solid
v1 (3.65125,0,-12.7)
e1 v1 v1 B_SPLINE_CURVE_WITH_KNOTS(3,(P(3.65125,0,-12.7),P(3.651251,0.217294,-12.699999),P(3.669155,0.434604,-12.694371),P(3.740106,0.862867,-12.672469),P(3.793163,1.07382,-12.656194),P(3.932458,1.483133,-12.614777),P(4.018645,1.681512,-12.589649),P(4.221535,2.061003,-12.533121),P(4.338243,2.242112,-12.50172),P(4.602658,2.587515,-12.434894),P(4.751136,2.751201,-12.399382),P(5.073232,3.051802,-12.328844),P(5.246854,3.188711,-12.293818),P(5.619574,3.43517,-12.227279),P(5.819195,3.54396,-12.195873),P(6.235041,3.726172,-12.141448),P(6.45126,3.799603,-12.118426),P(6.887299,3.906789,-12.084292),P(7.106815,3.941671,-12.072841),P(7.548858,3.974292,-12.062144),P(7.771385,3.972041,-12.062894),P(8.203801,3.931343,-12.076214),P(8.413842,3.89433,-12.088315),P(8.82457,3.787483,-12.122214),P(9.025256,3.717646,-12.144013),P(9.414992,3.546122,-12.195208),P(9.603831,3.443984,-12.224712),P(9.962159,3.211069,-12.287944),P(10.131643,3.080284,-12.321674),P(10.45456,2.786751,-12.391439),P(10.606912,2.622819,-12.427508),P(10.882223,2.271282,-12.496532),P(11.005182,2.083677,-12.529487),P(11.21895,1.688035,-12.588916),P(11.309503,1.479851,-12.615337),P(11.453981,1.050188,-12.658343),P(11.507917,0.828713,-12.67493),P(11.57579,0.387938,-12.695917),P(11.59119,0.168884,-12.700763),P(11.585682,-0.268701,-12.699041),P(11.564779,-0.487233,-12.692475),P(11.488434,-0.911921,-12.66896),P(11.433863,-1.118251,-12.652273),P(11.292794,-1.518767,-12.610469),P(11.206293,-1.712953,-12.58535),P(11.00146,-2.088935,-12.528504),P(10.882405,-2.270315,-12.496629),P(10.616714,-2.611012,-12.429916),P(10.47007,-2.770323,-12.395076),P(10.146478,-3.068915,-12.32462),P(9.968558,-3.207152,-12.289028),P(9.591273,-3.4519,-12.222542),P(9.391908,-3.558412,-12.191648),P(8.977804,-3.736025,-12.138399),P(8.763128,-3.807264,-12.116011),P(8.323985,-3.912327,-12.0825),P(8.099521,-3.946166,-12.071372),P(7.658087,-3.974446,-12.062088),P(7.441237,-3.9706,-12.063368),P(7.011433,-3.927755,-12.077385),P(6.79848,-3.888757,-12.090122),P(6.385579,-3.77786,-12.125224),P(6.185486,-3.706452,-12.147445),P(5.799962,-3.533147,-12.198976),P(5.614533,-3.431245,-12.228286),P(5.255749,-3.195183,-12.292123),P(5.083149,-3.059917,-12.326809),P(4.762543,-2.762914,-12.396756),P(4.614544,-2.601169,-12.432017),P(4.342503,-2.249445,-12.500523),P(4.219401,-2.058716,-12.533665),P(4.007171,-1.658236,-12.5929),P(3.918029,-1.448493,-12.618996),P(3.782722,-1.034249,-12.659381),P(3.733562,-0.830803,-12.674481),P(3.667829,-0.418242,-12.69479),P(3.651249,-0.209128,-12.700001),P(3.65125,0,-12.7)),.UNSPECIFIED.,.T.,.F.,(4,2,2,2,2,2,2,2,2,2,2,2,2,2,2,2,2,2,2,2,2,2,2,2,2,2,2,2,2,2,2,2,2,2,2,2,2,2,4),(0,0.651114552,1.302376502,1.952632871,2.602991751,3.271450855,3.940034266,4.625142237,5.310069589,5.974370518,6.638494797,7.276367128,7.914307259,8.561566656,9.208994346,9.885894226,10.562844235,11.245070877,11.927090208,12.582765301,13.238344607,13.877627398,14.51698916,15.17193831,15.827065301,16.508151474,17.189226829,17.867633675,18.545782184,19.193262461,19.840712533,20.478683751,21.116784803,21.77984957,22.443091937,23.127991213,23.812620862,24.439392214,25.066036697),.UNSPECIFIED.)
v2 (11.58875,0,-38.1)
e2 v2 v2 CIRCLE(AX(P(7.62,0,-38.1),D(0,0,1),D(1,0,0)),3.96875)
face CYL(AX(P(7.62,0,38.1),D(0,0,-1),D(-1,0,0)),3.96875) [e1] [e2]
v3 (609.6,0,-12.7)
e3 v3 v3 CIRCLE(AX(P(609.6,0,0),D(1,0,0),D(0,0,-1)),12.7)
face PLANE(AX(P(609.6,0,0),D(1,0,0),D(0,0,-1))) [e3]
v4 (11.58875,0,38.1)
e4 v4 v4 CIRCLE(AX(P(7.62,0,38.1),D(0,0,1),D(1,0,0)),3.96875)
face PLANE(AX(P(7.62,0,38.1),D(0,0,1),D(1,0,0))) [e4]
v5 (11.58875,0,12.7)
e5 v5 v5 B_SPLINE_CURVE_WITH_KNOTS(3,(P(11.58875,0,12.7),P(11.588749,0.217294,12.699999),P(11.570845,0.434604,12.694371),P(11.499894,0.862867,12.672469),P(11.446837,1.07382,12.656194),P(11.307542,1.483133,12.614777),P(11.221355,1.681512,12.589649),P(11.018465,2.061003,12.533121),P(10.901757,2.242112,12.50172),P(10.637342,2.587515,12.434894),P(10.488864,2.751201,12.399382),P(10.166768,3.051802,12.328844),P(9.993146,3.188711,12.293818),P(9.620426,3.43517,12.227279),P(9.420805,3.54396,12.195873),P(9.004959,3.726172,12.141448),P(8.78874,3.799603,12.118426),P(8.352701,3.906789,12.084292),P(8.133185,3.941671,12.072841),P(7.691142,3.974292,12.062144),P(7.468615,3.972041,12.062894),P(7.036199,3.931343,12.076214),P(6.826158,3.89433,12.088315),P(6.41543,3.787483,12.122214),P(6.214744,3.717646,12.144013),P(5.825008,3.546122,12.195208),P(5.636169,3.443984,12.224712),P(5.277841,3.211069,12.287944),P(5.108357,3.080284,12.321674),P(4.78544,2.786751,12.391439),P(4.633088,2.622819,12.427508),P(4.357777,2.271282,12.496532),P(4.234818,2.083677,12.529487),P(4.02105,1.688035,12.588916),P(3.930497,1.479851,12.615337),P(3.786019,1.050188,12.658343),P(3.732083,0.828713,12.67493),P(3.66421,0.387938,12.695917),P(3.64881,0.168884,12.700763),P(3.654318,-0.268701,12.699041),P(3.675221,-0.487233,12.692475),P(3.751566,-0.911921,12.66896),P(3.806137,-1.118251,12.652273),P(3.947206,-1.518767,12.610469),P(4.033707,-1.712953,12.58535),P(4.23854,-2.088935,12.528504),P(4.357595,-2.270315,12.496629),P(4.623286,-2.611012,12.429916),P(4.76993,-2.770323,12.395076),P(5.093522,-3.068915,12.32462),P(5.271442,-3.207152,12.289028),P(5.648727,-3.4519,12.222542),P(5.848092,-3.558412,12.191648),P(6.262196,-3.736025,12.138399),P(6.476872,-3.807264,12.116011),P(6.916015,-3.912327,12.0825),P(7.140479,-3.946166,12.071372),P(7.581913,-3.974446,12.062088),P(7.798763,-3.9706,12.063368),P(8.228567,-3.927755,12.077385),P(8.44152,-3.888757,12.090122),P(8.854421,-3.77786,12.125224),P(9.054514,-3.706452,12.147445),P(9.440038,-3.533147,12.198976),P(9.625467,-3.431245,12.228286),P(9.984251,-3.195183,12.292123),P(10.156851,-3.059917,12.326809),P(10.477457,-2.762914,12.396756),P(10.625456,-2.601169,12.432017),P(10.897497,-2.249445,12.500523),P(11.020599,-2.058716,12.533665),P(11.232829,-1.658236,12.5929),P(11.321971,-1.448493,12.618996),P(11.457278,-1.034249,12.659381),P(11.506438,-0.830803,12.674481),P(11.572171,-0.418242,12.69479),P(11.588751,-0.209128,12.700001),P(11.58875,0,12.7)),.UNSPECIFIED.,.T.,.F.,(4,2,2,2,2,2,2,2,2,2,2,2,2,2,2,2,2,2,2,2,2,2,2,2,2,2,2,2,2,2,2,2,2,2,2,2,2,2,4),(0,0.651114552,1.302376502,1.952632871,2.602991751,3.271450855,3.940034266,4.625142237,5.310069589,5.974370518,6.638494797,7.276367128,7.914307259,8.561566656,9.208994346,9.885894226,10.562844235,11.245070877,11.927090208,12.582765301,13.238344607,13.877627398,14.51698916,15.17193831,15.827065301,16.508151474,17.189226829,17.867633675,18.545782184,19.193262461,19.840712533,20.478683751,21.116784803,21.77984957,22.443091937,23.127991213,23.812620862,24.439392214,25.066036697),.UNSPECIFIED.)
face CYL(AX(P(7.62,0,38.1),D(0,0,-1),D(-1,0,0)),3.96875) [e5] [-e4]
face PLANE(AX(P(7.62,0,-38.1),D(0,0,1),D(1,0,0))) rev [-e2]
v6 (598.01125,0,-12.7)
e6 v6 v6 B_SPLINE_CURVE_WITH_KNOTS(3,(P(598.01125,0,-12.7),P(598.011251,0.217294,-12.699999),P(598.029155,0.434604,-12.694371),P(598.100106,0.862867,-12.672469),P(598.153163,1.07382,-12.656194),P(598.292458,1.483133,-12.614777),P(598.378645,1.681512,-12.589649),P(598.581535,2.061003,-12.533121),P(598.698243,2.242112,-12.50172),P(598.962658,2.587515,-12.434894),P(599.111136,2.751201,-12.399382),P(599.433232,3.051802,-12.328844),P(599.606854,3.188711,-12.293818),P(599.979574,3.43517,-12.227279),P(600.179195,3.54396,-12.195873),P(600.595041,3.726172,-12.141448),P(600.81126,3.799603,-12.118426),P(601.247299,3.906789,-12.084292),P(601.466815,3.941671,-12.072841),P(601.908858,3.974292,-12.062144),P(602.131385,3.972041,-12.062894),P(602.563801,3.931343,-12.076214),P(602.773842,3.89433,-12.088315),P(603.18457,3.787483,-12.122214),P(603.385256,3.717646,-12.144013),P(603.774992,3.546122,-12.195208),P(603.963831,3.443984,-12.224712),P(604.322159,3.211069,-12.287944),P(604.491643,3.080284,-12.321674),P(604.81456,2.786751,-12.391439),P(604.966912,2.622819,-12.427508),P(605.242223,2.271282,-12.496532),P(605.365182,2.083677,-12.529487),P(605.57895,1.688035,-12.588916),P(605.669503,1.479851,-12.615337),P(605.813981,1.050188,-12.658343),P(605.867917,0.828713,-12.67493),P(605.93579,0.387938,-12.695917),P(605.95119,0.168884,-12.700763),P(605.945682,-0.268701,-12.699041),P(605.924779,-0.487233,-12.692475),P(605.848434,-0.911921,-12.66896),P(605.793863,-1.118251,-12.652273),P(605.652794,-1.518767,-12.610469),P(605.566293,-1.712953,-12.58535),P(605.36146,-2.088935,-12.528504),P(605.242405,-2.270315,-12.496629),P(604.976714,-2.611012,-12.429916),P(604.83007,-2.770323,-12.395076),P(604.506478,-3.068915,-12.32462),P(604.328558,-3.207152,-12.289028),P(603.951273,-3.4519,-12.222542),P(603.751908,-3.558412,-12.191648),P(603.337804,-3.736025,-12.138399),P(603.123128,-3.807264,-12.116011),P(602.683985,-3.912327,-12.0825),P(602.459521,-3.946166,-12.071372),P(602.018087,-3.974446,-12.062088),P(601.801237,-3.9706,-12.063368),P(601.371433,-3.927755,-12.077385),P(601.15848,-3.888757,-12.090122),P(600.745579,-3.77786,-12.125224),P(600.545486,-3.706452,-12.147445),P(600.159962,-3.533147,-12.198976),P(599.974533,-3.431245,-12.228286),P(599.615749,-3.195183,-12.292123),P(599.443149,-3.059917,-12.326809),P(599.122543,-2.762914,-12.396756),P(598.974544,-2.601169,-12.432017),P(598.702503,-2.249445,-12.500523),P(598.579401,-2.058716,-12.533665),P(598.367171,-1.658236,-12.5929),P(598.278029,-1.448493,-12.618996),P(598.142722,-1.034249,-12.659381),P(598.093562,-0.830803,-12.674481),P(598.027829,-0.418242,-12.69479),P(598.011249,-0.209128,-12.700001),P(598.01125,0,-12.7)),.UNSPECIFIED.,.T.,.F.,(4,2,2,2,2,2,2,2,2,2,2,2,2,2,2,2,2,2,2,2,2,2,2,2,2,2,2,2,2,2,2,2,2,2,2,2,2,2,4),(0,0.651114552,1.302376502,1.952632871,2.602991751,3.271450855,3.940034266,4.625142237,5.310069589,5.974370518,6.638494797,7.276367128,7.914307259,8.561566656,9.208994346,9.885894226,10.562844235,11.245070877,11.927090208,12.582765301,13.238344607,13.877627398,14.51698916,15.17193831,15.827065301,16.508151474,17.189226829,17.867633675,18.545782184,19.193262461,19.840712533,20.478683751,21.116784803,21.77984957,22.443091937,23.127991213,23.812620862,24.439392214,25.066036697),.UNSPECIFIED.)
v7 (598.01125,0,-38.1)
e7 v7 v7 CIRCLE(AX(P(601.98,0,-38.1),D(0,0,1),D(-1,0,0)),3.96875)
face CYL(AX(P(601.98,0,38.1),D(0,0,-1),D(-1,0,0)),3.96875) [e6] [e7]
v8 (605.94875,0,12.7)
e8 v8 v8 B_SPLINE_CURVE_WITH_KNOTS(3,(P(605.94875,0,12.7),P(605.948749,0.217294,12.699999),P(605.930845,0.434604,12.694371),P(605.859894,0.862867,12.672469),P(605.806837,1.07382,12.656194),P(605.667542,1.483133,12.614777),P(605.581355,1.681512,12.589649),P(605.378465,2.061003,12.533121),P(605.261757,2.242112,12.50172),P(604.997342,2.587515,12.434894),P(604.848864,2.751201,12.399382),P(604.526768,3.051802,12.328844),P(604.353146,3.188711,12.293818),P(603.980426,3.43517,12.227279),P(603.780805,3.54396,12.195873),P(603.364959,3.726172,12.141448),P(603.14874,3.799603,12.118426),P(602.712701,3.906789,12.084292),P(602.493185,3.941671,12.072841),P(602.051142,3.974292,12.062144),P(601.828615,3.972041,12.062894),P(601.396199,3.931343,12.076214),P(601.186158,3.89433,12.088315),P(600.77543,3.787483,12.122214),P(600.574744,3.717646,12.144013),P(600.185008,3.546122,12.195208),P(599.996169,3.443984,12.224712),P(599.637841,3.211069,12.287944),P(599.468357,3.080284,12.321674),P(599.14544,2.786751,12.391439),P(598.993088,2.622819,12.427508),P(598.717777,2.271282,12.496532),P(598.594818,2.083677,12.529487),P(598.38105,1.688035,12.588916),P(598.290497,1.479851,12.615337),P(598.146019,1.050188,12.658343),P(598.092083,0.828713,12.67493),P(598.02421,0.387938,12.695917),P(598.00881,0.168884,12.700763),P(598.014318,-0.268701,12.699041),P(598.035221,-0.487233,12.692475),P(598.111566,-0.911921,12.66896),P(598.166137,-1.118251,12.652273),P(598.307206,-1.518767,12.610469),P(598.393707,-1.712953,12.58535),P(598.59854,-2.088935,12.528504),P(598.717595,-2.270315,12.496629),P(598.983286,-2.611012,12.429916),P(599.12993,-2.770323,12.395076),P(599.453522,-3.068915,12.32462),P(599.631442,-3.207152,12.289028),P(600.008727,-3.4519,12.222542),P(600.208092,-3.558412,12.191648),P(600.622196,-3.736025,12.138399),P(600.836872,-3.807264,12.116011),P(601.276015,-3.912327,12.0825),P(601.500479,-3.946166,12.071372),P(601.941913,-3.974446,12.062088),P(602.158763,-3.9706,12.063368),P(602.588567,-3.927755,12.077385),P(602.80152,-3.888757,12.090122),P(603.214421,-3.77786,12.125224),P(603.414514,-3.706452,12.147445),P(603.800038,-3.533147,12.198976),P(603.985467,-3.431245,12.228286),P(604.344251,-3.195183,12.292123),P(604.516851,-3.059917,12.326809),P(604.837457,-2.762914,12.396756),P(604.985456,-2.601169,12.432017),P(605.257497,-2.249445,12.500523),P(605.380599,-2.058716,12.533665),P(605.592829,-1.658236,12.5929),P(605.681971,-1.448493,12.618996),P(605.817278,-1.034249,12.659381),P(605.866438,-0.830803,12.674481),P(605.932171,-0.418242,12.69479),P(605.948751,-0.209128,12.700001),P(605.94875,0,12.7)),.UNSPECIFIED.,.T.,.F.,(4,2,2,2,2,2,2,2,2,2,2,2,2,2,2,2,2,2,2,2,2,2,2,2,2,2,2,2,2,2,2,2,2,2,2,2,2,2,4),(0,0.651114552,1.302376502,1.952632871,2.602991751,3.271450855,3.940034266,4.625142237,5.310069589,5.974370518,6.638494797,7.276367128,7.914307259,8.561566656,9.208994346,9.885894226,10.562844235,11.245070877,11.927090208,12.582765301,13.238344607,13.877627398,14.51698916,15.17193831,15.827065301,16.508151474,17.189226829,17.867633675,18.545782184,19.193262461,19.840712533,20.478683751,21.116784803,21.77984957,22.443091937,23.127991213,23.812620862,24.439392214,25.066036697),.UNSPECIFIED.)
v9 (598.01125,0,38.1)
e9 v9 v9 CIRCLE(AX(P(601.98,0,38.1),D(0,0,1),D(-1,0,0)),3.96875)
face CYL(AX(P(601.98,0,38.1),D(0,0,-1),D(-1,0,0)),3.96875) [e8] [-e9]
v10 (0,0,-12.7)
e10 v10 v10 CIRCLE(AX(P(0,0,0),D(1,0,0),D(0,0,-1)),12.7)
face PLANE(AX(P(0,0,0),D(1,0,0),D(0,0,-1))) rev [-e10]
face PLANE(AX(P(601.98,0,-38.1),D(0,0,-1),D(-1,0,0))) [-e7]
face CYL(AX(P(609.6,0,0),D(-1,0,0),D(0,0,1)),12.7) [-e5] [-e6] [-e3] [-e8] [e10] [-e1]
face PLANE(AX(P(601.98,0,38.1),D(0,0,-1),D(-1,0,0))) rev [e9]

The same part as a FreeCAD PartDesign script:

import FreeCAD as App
import Part
import Sketcher

V = App.Vector
Q = App.Units.Quantity

doc = App.newDocument("Part")
body = doc.addObject("PartDesign::Body", "Body")

# Sketch on YZ plane
sketch1 = body.newObject("Sketcher::SketchObject", "Sketch")
sketch1.AttachmentSupport = (doc.getObject("YZ_Plane"), [""])
sketch1.MapMode = "FlatFace"
sketch1.addGeometry(Part.Circle(V(0, 0, 0), V(0, 0, 1), 13), False)
sketch1.addConstraint([
    Sketcher.Constraint("Coincident", 0, 3, -1, 1),
    Sketcher.Constraint("Diameter", 0, Q("1 in")),
])
pad1 = body.newObject("PartDesign::Pad", "Pad")
pad1.Profile = sketch1
pad1.Length = Q("24 in")

# Sketch on XY plane
sketch2 = body.newObject("Sketcher::SketchObject", "Sketch001")
sketch2.AttachmentSupport = (doc.getObject("XY_Plane"), [""])
sketch2.MapMode = "FlatFace"
sketch2.addGeometry([
    Part.Circle(V(7.6, 0, 0), V(0, 0, 1), 4),
    Part.Circle(V(602, 0, 0), V(0, 0, 1), 4),
], False)
sketch2.addConstraint([
    Sketcher.Constraint("Equal", 0, 1),
    Sketcher.Constraint("PointOnObject", 0, 3, -1),
    Sketcher.Constraint("PointOnObject", 1, 3, -1),
    Sketcher.Constraint("Diameter", 0, Q("0.3125 in")),
    Sketcher.Constraint("DistanceX", -1, 1, 0, 3, Q("0.3 in")),
    Sketcher.Constraint("DistanceX", -1, 1, 1, 3, Q("23.7 in")),
])
pad2 = body.newObject("PartDesign::Pad", "Pad001")
pad2.Profile = sketch2
pad2.Length = Q("3 in")
pad2.Midplane = True

doc.recompute()
